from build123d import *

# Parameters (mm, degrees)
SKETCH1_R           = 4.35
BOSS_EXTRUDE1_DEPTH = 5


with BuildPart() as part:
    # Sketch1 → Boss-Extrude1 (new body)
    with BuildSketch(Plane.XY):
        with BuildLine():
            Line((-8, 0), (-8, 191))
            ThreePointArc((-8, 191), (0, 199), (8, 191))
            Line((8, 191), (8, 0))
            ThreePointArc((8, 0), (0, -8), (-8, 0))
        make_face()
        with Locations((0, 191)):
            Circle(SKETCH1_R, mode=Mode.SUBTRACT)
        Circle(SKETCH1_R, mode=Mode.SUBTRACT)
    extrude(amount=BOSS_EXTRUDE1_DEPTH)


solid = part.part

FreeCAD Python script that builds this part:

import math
import FreeCAD as App
import Part
import Sketcher

V = App.Vector
Q = App.Units.Quantity

doc = App.newDocument("Part")
body = doc.addObject("PartDesign::Body", "Body")

# Sketch on XY plane
sketch1 = doc.addObject("Sketcher::SketchObject", "Sketch")
body.addObject(sketch1)
sketch1.AttachmentSupport = (doc.XY_Plane, [""])
sketch1.MapMode = "FlatFace"
sketch1.addGeometry(Part.LineSegment(V(-8, 191, 0), V(-8, 0, 0)), False)
sketch1.addGeometry(Part.ArcOfCircle(Part.Circle(V(0, 0, 0), V(0, 0, 1), 8), math.radians(180), math.radians(360)), False)
sketch1.addGeometry(Part.LineSegment(V(8, 0, 0), V(8, 191, 0)), False)
sketch1.addGeometry(Part.ArcOfCircle(Part.Circle(V(0, 191, 0), V(0, 0, 1), 8), math.radians(0), math.radians(180)), False)
sketch1.addGeometry(Part.Circle(V(0, 0, 0), V(0, 0, 1), 4.3), False)
sketch1.addGeometry(Part.Circle(V(0, 191, 0), V(0, 0, 1), 4.3), False)
sketch1.addConstraint(Sketcher.Constraint("Tangent", 0, 2, 1, 1))
sketch1.addConstraint(Sketcher.Constraint("Tangent", 1, 2, 2, 1))
sketch1.addConstraint(Sketcher.Constraint("Tangent", 2, 2, 3, 1))
sketch1.addConstraint(Sketcher.Constraint("Tangent", 3, 2, 0, 1))
sketch1.addConstraint(Sketcher.Constraint("Vertical", 0))
sketch1.addConstraint(Sketcher.Constraint("Vertical", 2))
sketch1.addConstraint(Sketcher.Constraint("Coincident", 1, 3, -1, 1))
sketch1.addConstraint(Sketcher.Constraint("Coincident", 4, 3, -1, 1))
sketch1.addConstraint(Sketcher.Constraint("Coincident", 5, 3, 3, 3))
sketch1.addConstraint(Sketcher.Constraint("Equal", 4, 5))
sketch1.addConstraint(Sketcher.Constraint("Radius", 1, Q("8 mm")))
sketch1.addConstraint(Sketcher.Constraint("Diameter", 4, Q("8.7 mm")))
sketch1.addConstraint(Sketcher.Constraint("DistanceY", 0, 2, 0, 1, Q("191 mm")))
pad1 = doc.addObject("PartDesign::Pad", "Pad")
body.addObject(pad1)
pad1.Profile = sketch1
pad1.Length = 5

doc.recompute()
